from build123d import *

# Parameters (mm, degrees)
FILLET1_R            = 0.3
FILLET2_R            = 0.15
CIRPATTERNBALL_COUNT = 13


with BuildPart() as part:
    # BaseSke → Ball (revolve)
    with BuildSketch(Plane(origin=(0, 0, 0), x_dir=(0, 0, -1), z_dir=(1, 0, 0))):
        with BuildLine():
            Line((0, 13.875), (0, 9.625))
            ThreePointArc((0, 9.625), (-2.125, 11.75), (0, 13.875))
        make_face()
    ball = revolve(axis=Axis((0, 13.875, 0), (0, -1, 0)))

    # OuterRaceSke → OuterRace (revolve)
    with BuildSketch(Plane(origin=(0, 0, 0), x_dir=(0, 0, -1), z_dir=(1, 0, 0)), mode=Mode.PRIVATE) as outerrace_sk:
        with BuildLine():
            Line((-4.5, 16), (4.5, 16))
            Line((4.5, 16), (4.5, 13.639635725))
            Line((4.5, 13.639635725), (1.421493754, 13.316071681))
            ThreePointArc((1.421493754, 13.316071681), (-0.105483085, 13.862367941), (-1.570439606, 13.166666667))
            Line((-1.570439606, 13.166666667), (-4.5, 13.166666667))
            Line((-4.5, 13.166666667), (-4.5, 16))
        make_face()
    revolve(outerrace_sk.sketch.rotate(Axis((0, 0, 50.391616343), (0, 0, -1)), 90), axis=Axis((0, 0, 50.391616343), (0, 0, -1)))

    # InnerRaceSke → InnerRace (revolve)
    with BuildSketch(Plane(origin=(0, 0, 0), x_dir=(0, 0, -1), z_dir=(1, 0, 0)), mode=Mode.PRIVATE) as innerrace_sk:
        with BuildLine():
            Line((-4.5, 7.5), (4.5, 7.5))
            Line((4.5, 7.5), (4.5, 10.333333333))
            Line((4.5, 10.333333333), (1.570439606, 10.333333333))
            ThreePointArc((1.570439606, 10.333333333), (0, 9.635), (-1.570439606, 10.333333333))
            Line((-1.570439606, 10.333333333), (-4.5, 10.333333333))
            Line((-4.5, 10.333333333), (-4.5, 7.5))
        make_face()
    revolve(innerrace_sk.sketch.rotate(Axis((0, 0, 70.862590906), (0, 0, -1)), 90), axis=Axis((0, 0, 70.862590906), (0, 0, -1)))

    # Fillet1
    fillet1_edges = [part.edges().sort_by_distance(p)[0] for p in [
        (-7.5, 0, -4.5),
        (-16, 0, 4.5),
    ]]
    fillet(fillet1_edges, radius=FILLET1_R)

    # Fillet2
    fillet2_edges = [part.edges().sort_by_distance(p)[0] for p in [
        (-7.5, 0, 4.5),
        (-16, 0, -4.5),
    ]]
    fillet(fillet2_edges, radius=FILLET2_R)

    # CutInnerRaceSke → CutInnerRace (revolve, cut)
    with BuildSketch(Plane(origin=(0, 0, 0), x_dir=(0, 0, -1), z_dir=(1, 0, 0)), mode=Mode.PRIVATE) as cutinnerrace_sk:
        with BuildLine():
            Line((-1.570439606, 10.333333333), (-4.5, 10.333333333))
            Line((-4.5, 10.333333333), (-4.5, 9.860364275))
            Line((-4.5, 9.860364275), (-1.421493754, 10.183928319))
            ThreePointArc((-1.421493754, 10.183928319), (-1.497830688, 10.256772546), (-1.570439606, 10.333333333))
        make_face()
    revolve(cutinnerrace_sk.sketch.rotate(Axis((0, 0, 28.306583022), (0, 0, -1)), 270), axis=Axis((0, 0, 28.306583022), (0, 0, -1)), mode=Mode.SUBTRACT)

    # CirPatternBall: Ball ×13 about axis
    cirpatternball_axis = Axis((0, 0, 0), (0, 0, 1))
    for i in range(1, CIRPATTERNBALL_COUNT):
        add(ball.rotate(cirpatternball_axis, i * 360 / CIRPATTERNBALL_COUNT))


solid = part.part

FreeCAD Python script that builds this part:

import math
import FreeCAD as App
import Part
import Sketcher

V = App.Vector
Q = App.Units.Quantity


def edges_at(feature, points):
    """Names of the edges that pass closest to the given points."""
    edges = feature.Shape.Edges
    near = lambda p: min(range(len(edges)), key=lambda i: edges[i].distToShape(Part.Vertex(*p))[0])
    return sorted({f"Edge{near(p) + 1}" for p in points})

doc = App.newDocument("Part")
body = doc.addObject("PartDesign::Body", "Body")

# Sketch on YZ plane
sketch1 = body.newObject("Sketcher::SketchObject", "Sketch")
sketch1.AttachmentSupport = (doc.getObject("YZ_Plane"), [""])
sketch1.MapMode = "FlatFace"
sketch1.addGeometry(Part.LineSegment(V(9.6, 0, 0), V(13.9, 0, 0)), False)
sketch1.addGeometry(Part.ArcOfCircle(Part.Circle(V(11.8, 0, 0), V(0, 0, 1), 2.1), math.radians(0), math.radians(180)), False)
sketch1.addConstraint(Sketcher.Constraint("Coincident", 0, 1, 1, 2))
sketch1.addConstraint(Sketcher.Constraint("Coincident", 1, 1, 0, 2))
sketch1.addConstraint(Sketcher.Constraint("Horizontal", 0))
sketch1.addConstraint(Sketcher.Constraint("PointOnObject", 1, 3, -1))
sketch1.addConstraint(Sketcher.Constraint("PointOnObject", 0, 1, -1))
sketch1.addConstraint(Sketcher.Constraint("Radius", 1, Q("2.125 mm")))
sketch1.addConstraint(Sketcher.Constraint("DistanceX", -1, 1, 1, 3, Q("11.75 mm")))
revolution = body.newObject("PartDesign::Revolution", "Revolution")
revolution.Profile = sketch1
revolution.ReferenceAxis = (sketch1, ["H_Axis"])
revolution.Angle = 360

# Sketch on YZ plane
sketch2 = body.newObject("Sketcher::SketchObject", "Sketch001")
sketch2.AttachmentSupport = (doc.getObject("YZ_Plane"), [""])
sketch2.MapMode = "FlatFace"
sketch2.addGeometry(Part.LineSegment(V(16, -4.5, 0), V(16, 4.5, 0)), False)
sketch2.addGeometry(Part.LineSegment(V(16, 4.5, 0), V(13.2, 4.5, 0)), False)
sketch2.addGeometry(Part.LineSegment(V(13.2, 4.5, 0), V(13.2, 1.6, 0)), False)
sketch2.addGeometry(Part.ArcOfCircle(Part.Circle(V(11.7, 0, 0), V(0, 0, 1), 2.1), math.radians(-42), math.radians(48)), False)
sketch2.addGeometry(Part.LineSegment(V(13.3, -1.4, 0), V(13.6, -4.5, 0)), False)
sketch2.addGeometry(Part.LineSegment(V(13.6, -4.5, 0), V(16, -4.5, 0)), False)
sketch2.addConstraint(Sketcher.Constraint("Coincident", 0, 2, 1, 1))
sketch2.addConstraint(Sketcher.Constraint("Coincident", 1, 2, 2, 1))
sketch2.addConstraint(Sketcher.Constraint("Coincident", 2, 2, 3, 2))
sketch2.addConstraint(Sketcher.Constraint("Coincident", 3, 1, 4, 1))
sketch2.addConstraint(Sketcher.Constraint("Coincident", 4, 2, 5, 1))
sketch2.addConstraint(Sketcher.Constraint("Coincident", 5, 2, 0, 1))
sketch2.addConstraint(Sketcher.Constraint("Vertical", 0))
sketch2.addConstraint(Sketcher.Constraint("Horizontal", 1))
sketch2.addConstraint(Sketcher.Constraint("Vertical", 2))
sketch2.addConstraint(Sketcher.Constraint("Horizontal", 5))
sketch2.addConstraint(Sketcher.Constraint("PointOnObject", 3, 3, -1))
sketch2.addConstraint(Sketcher.Constraint("DistanceY", 0, 1, 0, 2, Q("9 mm")))
sketch2.addConstraint(Sketcher.Constraint("Angle", 4, Q("-84 deg")))
sketch2.addConstraint(Sketcher.Constraint("DistanceX", -1, 1, 0, 2, Q("16 mm")))
sketch2.addConstraint(Sketcher.Constraint("Radius", 3, Q("2.115 mm")))
sketch2.addConstraint(Sketcher.Constraint("DistanceY", -1, 1, 0, 2, Q("4.5 mm")))
sketch2.addConstraint(Sketcher.Constraint("DistanceX", -1, 1, 3, 3, Q("11.75 mm")))
sketch2.addConstraint(Sketcher.Constraint("DistanceY", 2, 2, 2, 1, Q("2.92956 mm")))
sketch2.addConstraint(Sketcher.Constraint("DistanceX", 5, 1, 5, 2, Q("2.360364 mm")))
revolution2 = body.newObject("PartDesign::Revolution", "Revolution001")
revolution2.Profile = sketch2
revolution2.ReferenceAxis = (sketch2, ["V_Axis"])
revolution2.Angle = 360

# Sketch on YZ plane
sketch3 = body.newObject("Sketcher::SketchObject", "Sketch002")
sketch3.AttachmentSupport = (doc.getObject("YZ_Plane"), [""])
sketch3.MapMode = "FlatFace"
sketch3.addGeometry(Part.LineSegment(V(7.5, 4.5, 0), V(7.5, -4.5, 0)), False)
sketch3.addGeometry(Part.LineSegment(V(7.5, -4.5, 0), V(10.3, -4.5, 0)), False)
sketch3.addGeometry(Part.LineSegment(V(10.3, -4.5, 0), V(10.3, -1.6, 0)), False)
sketch3.addGeometry(Part.ArcOfCircle(Part.Circle(V(11.8, 0, 0), V(0, 0, 1), 2.1), math.radians(132), math.radians(228)), False)
sketch3.addGeometry(Part.LineSegment(V(10.3, 1.6, 0), V(10.3, 4.5, 0)), False)
sketch3.addGeometry(Part.LineSegment(V(10.3, 4.5, 0), V(7.5, 4.5, 0)), False)
sketch3.addConstraint(Sketcher.Constraint("Coincident", 0, 2, 1, 1))
sketch3.addConstraint(Sketcher.Constraint("Coincident", 1, 2, 2, 1))
sketch3.addConstraint(Sketcher.Constraint("Coincident", 2, 2, 3, 2))
sketch3.addConstraint(Sketcher.Constraint("Coincident", 3, 1, 4, 1))
sketch3.addConstraint(Sketcher.Constraint("Coincident", 4, 2, 5, 1))
sketch3.addConstraint(Sketcher.Constraint("Coincident", 5, 2, 0, 1))
sketch3.addConstraint(Sketcher.Constraint("Vertical", 0))
sketch3.addConstraint(Sketcher.Constraint("Horizontal", 1))
sketch3.addConstraint(Sketcher.Constraint("Vertical", 2))
sketch3.addConstraint(Sketcher.Constraint("Vertical", 4))
sketch3.addConstraint(Sketcher.Constraint("Horizontal", 5))
sketch3.addConstraint(Sketcher.Constraint("Symmetric", 2, 2, 3, 1, -1))
sketch3.addConstraint(Sketcher.Constraint("Equal", 2, 4))
sketch3.addConstraint(Sketcher.Constraint("DistanceY", 0, 2, 0, 1, Q("9 mm")))
sketch3.addConstraint(Sketcher.Constraint("Radius", 3, Q("2.115 mm")))
sketch3.addConstraint(Sketcher.Constraint("DistanceX", -1, 1, 0, 2, Q("7.5 mm")))
sketch3.addConstraint(Sketcher.Constraint("DistanceX", -1, 1, 3, 3, Q("11.75 mm")))
sketch3.addConstraint(Sketcher.Constraint("DistanceY", 2, 1, 2, 2, Q("2.92956 mm")))
revolution3 = body.newObject("PartDesign::Revolution", "Revolution002")
revolution3.Profile = sketch3
revolution3.ReferenceAxis = (sketch3, ["V_Axis"])
revolution3.Angle = 360
doc.recompute()

fillet = body.newObject("PartDesign::Fillet", "Fillet")
fillet.Base = (revolution3, edges_at(revolution3, [(-7.5, 0, -4.5), (-16, 0, 4.5)]))
fillet.Radius = 0.3
doc.recompute()

fillet2 = body.newObject("PartDesign::Fillet", "Fillet001")
fillet2.Base = (fillet, edges_at(fillet, [(-7.5, 0, 4.5), (-16, 0, -4.5)]))
fillet2.Radius = 0.15

# Sketch on YZ plane
sketch4 = body.newObject("Sketcher::SketchObject", "Sketch003")
sketch4.AttachmentSupport = (doc.getObject("YZ_Plane"), [""])
sketch4.MapMode = "FlatFace"
sketch4.addGeometry(Part.LineSegment(V(10.33, 1.57, 0), V(10.33, 4.5, 0)), False)
sketch4.addGeometry(Part.LineSegment(V(10.33, 4.5, 0), V(9.86, 4.5, 0)), False)
sketch4.addGeometry(Part.LineSegment(V(9.86, 4.5, 0), V(10.18, 1.42, 0)), False)
sketch4.addGeometry(Part.ArcOfCircle(Part.Circle(V(11.75, 0, 0), V(0, 0, 1), 2.12), math.radians(132.05), math.radians(137.77)), False)
sketch4.addConstraint(Sketcher.Constraint("Coincident", 0, 2, 1, 1))
sketch4.addConstraint(Sketcher.Constraint("Coincident", 1, 2, 2, 1))
sketch4.addConstraint(Sketcher.Constraint("Coincident", 2, 2, 3, 2))
sketch4.addConstraint(Sketcher.Constraint("Coincident", 3, 1, 0, 1))
sketch4.addConstraint(Sketcher.Constraint("Vertical", 0))
sketch4.addConstraint(Sketcher.Constraint("Horizontal", 1))
sketch4.addConstraint(Sketcher.Constraint("PointOnObject", 3, 3, -1))
sketch4.addConstraint(Sketcher.Constraint("Angle", 2, Q("-84 deg")))
sketch4.addConstraint(Sketcher.Constraint("Radius", 3, Q("2.115001 mm")))
sketch4.addConstraint(Sketcher.Constraint("DistanceY", -1, 1, 0, 2, Q("4.5 mm")))
sketch4.addConstraint(Sketcher.Constraint("DistanceX", -1, 1, 3, 3, Q("11.75 mm")))
sketch4.addConstraint(Sketcher.Constraint("DistanceX", 1, 2, 1, 1, Q("0.472969 mm")))
sketch4.addConstraint(Sketcher.Constraint("DistanceY", 0, 1, 0, 2, Q("2.92956 mm")))
groove = body.newObject("PartDesign::Groove", "Groove")
groove.Profile = sketch4
groove.ReferenceAxis = (sketch4, ["V_Axis"])
groove.Angle = 360
doc.recompute()

polarpattern = body.newObject("PartDesign::PolarPattern", "PolarPattern")
polarpattern.Originals = [revolution]
polarpattern.Axis = (doc.getObject("Z_Axis"), [""])
polarpattern.Angle = 360
polarpattern.Occurrences = 13
body.Tip = polarpattern

doc.recompute()
